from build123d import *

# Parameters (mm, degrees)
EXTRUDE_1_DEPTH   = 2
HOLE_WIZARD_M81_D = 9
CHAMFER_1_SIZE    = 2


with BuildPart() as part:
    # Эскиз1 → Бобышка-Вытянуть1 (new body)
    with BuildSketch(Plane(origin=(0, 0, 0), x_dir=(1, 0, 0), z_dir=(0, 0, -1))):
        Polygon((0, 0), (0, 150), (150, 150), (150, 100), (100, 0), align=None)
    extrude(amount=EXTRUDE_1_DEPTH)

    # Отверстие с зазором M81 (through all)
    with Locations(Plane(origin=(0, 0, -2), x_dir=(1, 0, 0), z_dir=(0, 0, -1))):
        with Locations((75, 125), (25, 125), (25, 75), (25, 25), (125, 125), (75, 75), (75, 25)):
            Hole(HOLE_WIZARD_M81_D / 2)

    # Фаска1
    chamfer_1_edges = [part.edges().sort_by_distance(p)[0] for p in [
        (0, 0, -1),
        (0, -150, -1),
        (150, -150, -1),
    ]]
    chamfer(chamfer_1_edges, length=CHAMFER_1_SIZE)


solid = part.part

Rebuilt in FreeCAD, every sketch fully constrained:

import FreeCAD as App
import Part
import Sketcher
from FreeCAD import Vector
Q = App.Units.Quantity


def edges_at(feature, points):
    """Names of the edges that pass closest to the given points."""
    edges = feature.Shape.Edges
    near = lambda p: min(range(len(edges)), key=lambda i: edges[i].distToShape(Part.Vertex(*p))[0])
    return sorted({f"Edge{near(p) + 1}" for p in points})


def add_polygon(sketch, points):
    """Adds a closed chain of lines whose ends are joined by coincident constraints."""
    first, n = sketch.GeometryCount, len(points)
    for a, b in zip(points, points[1:] + points[:1]):
        sketch.addGeometry(Part.LineSegment(App.Vector(*a, 0), App.Vector(*b, 0)), False)
    for i in range(n):
        sketch.addConstraint(Sketcher.Constraint("Coincident", first + i, 2, first + (i + 1) % n, 1))

doc = App.newDocument("Part")
body = doc.addObject("PartDesign::Body", "Body")

# Sketch on XY plane
sketch1 = doc.addObject("Sketcher::SketchObject", "Sketch")
body.addObject(sketch1)
sketch1.AttachmentSupport = (doc.XY_Plane, [""])
sketch1.MapMode = "FlatFace"
add_polygon(sketch1, [(0, -150), (0, 0), (100, 0), (150, -100), (150, -150)])  # lines 0-4
sketch1.addConstraint([
    Sketcher.Constraint("Vertical", 0),
    Sketcher.Constraint("Horizontal", 1),
    Sketcher.Constraint("Vertical", 3),
    Sketcher.Constraint("Horizontal", 4),
    Sketcher.Constraint("Coincident", 0, 2, -1, 1),
    Sketcher.Constraint("Equal", 4, 0),
    Sketcher.Constraint("DistanceX", 1, 1, 1, 2, Q("100 mm")),
    Sketcher.Constraint("DistanceX", 4, 2, 4, 1, Q("150 mm")),
    Sketcher.Constraint("DistanceY", 3, 2, 3, 1, Q("50 mm")),
])
pad1 = doc.addObject("PartDesign::Pad", "Pad")
body.addObject(pad1)
pad1.Profile = sketch1
pad1.Length = 2
pad1.Reversed = True

# Sketch on XY plane
sketch2 = doc.addObject("Sketcher::SketchObject", "Sketch001")
body.addObject(sketch2)
sketch2.AttachmentSupport = (doc.XY_Plane, [""])
sketch2.MapMode = "FlatFace"
sketch2.AttachmentOffset = App.Placement(Vector(0, 0, -2), App.Rotation())
sketch2.addGeometry([
    Part.Circle(Vector(75, -125, 0), Vector(0, 0, 1), 4.5),  # 0
    Part.Circle(Vector(25, -125, 0), Vector(0, 0, 1), 4.5),  # 1
    Part.Circle(Vector(25, -75, 0), Vector(0, 0, 1), 4.5),  # 2
    Part.Circle(Vector(25, -25, 0), Vector(0, 0, 1), 4.5),  # 3
    Part.Circle(Vector(125, -125, 0), Vector(0, 0, 1), 4.5),  # 4
    Part.Circle(Vector(75, -75, 0), Vector(0, 0, 1), 4.5),  # 5
    Part.Circle(Vector(75, -25, 0), Vector(0, 0, 1), 4.5),  # 6
], False)
sketch2.addConstraint([
    Sketcher.Constraint("Equal", 0, 1),
    Sketcher.Constraint("Equal", 1, 2),
    Sketcher.Constraint("Equal", 2, 3),
    Sketcher.Constraint("Equal", 3, 4),
    Sketcher.Constraint("Equal", 4, 5),
    Sketcher.Constraint("Equal", 5, 6),
    Sketcher.Constraint("Horizontal", 0, 3, 1, 3),
    Sketcher.Constraint("Horizontal", 1, 3, 4, 3),
    Sketcher.Constraint("Horizontal", 2, 3, 5, 3),
    Sketcher.Constraint("Horizontal", 3, 3, 6, 3),
    Sketcher.Constraint("Vertical", 1, 3, 2, 3),
    Sketcher.Constraint("Vertical", 2, 3, 3, 3),
    Sketcher.Constraint("Vertical", 0, 3, 5, 3),
    Sketcher.Constraint("Vertical", 5, 3, 6, 3),
    Sketcher.Constraint("Diameter", 0, Q("9 mm")),
    Sketcher.Constraint("DistanceX", -1, 1, 0, 3, Q("75 mm")),
    Sketcher.Constraint("DistanceY", 0, 3, -1, 1, Q("125 mm")),
    Sketcher.Constraint("DistanceX", -1, 1, 1, 3, Q("25 mm")),
    Sketcher.Constraint("DistanceY", 2, 3, -1, 1, Q("75 mm")),
    Sketcher.Constraint("DistanceY", 3, 3, -1, 1, Q("25 mm")),
    Sketcher.Constraint("DistanceX", -1, 1, 4, 3, Q("125 mm")),
])
doc.recompute()
hole = doc.addObject("PartDesign::Hole", "Hole")
body.addObject(hole)
hole.Profile = sketch2
hole.ThreadType = "None"
hole.Diameter = 9
hole.DepthType = "ThroughAll"
hole.Reversed = True
doc.recompute()

chamfer = doc.addObject("PartDesign::Chamfer", "Chamfer")
body.addObject(chamfer)
chamfer.Base = (hole, edges_at(hole, [(0, 0, -1), (0, -150, -1), (150, -150, -1)]))
chamfer.Size = 2

doc.recompute()
